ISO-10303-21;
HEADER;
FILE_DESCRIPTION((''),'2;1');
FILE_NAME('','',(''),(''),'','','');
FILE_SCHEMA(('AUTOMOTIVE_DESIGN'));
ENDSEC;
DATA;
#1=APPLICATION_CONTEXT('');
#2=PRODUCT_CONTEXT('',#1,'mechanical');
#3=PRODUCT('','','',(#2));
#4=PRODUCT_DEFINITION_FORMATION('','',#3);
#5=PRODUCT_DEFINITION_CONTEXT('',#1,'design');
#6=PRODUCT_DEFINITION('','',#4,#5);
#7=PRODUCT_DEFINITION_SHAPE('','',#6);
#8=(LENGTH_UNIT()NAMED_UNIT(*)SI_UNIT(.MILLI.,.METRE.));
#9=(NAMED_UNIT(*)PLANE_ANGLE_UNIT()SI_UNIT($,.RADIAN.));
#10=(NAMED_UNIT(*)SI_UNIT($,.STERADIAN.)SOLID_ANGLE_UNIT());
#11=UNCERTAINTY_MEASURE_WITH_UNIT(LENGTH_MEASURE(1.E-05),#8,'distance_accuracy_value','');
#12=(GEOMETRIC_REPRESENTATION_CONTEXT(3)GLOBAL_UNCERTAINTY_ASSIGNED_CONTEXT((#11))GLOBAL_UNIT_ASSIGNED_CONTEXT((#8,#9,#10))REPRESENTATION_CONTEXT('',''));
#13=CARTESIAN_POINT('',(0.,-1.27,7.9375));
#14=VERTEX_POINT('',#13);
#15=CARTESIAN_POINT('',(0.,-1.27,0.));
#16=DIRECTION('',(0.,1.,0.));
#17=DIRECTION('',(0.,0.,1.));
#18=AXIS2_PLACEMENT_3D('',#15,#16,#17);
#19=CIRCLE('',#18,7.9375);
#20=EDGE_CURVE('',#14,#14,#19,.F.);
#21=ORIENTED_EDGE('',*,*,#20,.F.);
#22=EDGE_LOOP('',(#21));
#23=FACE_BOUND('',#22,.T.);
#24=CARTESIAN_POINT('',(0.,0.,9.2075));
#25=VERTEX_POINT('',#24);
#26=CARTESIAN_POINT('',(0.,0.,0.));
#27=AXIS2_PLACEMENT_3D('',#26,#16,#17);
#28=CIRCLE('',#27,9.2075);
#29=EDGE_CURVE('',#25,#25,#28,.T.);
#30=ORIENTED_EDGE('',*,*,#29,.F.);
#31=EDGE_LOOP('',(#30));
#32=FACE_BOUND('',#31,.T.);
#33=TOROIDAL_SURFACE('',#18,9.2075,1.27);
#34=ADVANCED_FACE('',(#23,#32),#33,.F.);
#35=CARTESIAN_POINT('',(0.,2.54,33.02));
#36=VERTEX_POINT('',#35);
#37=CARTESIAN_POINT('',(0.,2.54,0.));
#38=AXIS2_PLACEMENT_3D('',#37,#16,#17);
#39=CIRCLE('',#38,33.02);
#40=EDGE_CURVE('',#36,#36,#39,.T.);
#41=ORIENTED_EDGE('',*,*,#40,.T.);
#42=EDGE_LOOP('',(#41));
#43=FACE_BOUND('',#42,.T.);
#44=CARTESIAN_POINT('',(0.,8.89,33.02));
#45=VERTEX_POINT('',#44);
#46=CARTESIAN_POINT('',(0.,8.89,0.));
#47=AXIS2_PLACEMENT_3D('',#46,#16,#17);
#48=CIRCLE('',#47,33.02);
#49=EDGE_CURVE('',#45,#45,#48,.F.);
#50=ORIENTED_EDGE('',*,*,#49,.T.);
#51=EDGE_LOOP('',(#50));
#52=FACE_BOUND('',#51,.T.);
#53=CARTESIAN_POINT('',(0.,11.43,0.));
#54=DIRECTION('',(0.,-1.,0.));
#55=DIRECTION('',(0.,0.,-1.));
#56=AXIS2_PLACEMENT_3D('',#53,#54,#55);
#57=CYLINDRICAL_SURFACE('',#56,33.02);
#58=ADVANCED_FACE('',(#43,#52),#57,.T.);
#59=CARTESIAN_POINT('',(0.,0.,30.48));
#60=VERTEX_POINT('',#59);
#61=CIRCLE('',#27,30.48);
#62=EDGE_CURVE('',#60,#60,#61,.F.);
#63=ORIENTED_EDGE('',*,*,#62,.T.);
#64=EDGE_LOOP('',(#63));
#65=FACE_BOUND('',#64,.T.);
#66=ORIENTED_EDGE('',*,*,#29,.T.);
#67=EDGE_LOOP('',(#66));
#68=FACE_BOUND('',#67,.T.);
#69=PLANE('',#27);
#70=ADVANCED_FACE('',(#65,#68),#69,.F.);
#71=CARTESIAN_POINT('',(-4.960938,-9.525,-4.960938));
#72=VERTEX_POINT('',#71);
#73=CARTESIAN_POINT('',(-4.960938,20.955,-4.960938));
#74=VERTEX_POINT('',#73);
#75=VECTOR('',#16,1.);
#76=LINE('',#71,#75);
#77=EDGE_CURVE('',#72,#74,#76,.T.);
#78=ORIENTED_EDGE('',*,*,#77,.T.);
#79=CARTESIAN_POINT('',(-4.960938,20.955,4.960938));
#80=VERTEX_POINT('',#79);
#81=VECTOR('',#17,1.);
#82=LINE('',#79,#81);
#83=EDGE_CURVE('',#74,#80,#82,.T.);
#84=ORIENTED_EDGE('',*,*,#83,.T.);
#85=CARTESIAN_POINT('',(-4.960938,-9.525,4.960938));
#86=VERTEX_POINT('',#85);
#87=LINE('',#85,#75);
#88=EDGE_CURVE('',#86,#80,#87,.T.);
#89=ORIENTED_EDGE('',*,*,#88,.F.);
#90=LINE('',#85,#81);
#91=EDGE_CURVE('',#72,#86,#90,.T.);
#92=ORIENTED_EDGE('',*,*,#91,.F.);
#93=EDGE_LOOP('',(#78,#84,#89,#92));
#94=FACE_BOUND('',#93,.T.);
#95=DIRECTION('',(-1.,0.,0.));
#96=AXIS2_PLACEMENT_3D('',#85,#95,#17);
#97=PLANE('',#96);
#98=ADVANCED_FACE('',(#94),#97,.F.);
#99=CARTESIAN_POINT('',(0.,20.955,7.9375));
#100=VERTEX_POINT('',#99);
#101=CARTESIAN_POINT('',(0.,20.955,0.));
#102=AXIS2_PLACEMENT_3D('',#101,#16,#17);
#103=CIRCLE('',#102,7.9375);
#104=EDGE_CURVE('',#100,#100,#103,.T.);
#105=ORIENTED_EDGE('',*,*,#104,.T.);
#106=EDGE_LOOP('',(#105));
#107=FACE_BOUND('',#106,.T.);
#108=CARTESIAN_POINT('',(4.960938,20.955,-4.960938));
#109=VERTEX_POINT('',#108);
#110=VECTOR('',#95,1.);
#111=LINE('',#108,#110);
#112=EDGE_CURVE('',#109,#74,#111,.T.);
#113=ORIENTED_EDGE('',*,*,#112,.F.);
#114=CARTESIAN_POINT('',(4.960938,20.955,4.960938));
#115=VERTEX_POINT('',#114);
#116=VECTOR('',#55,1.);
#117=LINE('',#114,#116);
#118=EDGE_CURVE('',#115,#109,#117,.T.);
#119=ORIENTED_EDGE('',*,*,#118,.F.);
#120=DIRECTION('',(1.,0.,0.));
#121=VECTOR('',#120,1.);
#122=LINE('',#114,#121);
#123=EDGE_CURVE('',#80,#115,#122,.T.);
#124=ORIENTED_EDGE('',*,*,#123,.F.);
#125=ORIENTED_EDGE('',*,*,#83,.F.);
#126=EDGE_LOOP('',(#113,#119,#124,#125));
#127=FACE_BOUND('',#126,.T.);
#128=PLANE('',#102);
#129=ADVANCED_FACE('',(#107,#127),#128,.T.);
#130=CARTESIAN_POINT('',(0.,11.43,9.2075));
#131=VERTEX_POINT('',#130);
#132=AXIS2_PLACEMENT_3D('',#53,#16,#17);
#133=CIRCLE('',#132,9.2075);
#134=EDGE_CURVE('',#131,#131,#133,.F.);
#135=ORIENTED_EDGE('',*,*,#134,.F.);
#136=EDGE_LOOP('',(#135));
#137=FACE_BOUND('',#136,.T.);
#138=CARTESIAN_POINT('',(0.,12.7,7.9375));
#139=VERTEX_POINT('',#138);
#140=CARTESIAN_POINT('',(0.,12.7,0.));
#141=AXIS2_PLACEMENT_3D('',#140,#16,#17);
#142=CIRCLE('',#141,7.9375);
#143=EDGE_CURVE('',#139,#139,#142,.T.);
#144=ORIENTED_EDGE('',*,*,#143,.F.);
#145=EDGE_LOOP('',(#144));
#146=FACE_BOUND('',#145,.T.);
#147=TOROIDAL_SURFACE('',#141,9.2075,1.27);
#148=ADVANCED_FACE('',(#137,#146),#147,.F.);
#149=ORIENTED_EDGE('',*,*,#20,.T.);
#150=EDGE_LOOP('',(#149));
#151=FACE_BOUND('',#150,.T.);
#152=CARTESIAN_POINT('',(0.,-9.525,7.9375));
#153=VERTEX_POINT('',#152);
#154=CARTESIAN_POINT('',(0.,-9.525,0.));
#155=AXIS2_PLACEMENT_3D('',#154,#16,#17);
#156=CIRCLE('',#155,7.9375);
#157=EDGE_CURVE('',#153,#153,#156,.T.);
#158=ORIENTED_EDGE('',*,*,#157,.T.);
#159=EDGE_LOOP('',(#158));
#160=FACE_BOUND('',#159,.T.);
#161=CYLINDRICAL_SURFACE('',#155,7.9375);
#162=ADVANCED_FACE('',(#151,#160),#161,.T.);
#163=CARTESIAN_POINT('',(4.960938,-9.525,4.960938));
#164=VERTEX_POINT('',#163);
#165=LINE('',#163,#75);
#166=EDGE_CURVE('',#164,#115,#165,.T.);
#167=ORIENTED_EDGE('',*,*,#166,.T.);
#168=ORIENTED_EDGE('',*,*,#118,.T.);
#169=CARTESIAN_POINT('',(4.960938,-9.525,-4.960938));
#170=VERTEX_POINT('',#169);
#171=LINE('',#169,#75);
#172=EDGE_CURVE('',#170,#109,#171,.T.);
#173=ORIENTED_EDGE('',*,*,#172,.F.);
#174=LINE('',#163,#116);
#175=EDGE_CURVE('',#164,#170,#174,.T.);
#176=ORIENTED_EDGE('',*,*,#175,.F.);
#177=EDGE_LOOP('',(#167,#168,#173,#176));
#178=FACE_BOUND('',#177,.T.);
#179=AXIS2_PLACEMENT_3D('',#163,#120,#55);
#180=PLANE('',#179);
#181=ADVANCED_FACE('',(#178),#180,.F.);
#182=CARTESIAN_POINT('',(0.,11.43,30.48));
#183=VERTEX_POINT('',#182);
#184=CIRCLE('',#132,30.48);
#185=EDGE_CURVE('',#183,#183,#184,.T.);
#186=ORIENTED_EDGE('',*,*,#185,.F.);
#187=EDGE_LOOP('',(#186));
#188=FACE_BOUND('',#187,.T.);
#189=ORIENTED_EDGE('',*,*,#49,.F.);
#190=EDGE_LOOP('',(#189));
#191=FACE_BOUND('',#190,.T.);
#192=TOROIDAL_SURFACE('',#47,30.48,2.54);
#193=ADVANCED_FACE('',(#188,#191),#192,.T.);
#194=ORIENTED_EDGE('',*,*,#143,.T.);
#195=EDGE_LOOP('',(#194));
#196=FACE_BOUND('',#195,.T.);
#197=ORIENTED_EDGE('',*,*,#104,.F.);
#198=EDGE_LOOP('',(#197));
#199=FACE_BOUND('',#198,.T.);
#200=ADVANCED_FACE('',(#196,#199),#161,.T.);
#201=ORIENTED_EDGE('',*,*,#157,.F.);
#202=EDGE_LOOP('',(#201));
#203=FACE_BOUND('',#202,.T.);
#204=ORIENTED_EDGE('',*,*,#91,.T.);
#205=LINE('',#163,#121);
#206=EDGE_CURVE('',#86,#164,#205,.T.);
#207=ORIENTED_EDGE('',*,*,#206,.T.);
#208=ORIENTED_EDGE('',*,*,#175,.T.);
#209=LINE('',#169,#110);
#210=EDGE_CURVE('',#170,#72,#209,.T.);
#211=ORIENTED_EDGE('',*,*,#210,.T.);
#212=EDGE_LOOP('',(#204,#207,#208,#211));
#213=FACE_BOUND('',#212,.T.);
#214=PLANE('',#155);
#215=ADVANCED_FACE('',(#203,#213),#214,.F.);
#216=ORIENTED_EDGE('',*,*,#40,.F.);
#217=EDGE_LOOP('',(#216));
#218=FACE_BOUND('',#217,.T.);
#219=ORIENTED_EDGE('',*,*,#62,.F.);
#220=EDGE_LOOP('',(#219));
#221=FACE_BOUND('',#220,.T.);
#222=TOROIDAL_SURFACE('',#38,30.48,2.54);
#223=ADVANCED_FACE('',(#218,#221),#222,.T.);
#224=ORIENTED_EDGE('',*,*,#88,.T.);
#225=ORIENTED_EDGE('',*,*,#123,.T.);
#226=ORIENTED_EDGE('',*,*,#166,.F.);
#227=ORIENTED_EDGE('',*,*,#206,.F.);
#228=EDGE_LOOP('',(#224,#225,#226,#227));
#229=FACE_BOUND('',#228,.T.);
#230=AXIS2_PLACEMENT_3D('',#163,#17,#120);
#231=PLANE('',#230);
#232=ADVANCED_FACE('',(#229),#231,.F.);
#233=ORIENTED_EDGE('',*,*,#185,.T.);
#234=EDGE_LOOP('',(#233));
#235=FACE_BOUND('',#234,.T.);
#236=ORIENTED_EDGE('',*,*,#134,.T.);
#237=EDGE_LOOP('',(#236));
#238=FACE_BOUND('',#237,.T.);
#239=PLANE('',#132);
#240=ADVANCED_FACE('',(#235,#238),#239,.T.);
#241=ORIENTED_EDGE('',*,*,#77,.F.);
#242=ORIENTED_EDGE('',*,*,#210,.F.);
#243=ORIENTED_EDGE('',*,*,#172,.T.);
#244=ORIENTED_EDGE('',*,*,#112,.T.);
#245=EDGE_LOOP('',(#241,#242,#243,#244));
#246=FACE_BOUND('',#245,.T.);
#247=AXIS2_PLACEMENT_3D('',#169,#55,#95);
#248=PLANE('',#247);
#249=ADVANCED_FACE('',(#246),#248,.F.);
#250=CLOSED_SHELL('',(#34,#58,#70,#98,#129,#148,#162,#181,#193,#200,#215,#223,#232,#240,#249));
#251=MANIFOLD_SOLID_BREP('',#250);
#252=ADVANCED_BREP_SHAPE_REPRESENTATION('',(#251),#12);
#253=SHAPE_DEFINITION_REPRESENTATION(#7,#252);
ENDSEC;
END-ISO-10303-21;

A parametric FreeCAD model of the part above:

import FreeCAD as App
import Part
import Sketcher
from FreeCAD import Vector
Q = App.Units.Quantity


def edges_at(feature, points):
    """Names of the edges that pass closest to the given points."""
    edges = feature.Shape.Edges
    near = lambda p: min(range(len(edges)), key=lambda i: edges[i].distToShape(Part.Vertex(*p))[0])
    return sorted({f"Edge{near(p) + 1}" for p in points})

doc = App.newDocument("Part")
body = doc.addObject("PartDesign::Body", "Body")

sketch1 = doc.addObject("Sketcher::SketchObject", "Sketch")
body.addObject(sketch1)
sketch1.AttachmentSupport = (doc.XZ_Plane, [""])
sketch1.MapMode = "FlatFace"
sketch1.addGeometry(Part.Circle(Vector(0, 0, 0), Vector(0, 0, 1), 33.02), False)
sketch1.addConstraint([
    Sketcher.Constraint("Coincident", 0, 3, -1, 1),
    Sketcher.Constraint("Diameter", 0, Q("2.6 in")),
])
pad1 = doc.addObject("PartDesign::Pad", "Pad")
body.addObject(pad1)
pad1.Profile = sketch1
pad1.Length = Q("0.45 in")
pad1.Reversed = True
doc.recompute()

fillet = doc.addObject("PartDesign::Fillet", "Fillet")
body.addObject(fillet)
fillet.Base = (pad1, edges_at(pad1, [(0, 0, -33.02), (0, 11.43, -33.02)]))
fillet.Radius = Q("0.1 in")

sketch2 = doc.addObject("Sketcher::SketchObject", "Sketch001")
body.addObject(sketch2)
sketch2.AttachmentSupport = (doc.XZ_Plane, [""])
sketch2.MapMode = "FlatFace"
sketch2.AttachmentOffset = App.Placement(Vector(0, 0, -0.45 * 25.4), App.Rotation())
sketch2.addGeometry(Part.Circle(Vector(0, 0, 0), Vector(0, 0, 1), 7.9375), False)
sketch2.addConstraint([
    Sketcher.Constraint("Coincident", 0, 3, -1, 1),
    Sketcher.Constraint("Diameter", 0, Q("0.625 in")),
])
pad2 = doc.addObject("PartDesign::Pad", "Pad001")
body.addObject(pad2)
pad2.Profile = sketch2
pad2.Type = "TwoLengths"
pad2.Length = Q("0.375 in")
pad2.Length2 = Q("0.825 in")
pad2.Reversed = True
doc.recompute()

fillet2 = doc.addObject("PartDesign::Fillet", "Fillet001")
body.addObject(fillet2)
fillet2.Base = (pad2, edges_at(pad2, [(0, 11.43, -7.938), (0, 0, -7.938)]))
fillet2.Radius = Q("0.05 in")

sketch3 = doc.addObject("Sketcher::SketchObject", "Sketch002")
body.addObject(sketch3)
sketch3.AttachmentSupport = (doc.XZ_Plane, [""])
sketch3.MapMode = "FlatFace"
sketch3.AttachmentOffset = App.Placement(Vector(0, 0, -0.45 * 25.4), App.Rotation())
sketch3.addGeometry([
    Part.LineSegment(Vector(-4.960938, -4.960938, 0), Vector(-4.960938, 4.960938, 0)),
    Part.LineSegment(Vector(-4.960938, 4.960938, 0), Vector(4.960938, 4.960938, 0)),
    Part.LineSegment(Vector(4.960938, 4.960938, 0), Vector(4.960938, -4.960938, 0)),
    Part.LineSegment(Vector(4.960938, -4.960938, 0), Vector(-4.960938, -4.960938, 0)),
], False)
sketch3.addConstraint([
    Sketcher.Constraint("Coincident", 0, 2, 1, 1),
    Sketcher.Constraint("Coincident", 1, 2, 2, 1),
    Sketcher.Constraint("Coincident", 2, 2, 3, 1),
    Sketcher.Constraint("Coincident", 3, 2, 0, 1),
    Sketcher.Constraint("Vertical", 0),
    Sketcher.Constraint("Horizontal", 1),
    Sketcher.Constraint("Vertical", 2),
    Sketcher.Constraint("Horizontal", 3),
    Sketcher.Constraint("Symmetric", 0, 2, 2, 2, -1, 1),
    Sketcher.Constraint("Equal", 3, 0),
    Sketcher.Constraint("DistanceX", 1, 1, 1, 2, Q("0.390625 in")),
])
pocket1 = doc.addObject("PartDesign::Pocket", "Pocket")
body.addObject(pocket1)
pocket1.Profile = sketch3
pocket1.Type = "ThroughAll"
pocket1.Midplane = True

doc.recompute()
